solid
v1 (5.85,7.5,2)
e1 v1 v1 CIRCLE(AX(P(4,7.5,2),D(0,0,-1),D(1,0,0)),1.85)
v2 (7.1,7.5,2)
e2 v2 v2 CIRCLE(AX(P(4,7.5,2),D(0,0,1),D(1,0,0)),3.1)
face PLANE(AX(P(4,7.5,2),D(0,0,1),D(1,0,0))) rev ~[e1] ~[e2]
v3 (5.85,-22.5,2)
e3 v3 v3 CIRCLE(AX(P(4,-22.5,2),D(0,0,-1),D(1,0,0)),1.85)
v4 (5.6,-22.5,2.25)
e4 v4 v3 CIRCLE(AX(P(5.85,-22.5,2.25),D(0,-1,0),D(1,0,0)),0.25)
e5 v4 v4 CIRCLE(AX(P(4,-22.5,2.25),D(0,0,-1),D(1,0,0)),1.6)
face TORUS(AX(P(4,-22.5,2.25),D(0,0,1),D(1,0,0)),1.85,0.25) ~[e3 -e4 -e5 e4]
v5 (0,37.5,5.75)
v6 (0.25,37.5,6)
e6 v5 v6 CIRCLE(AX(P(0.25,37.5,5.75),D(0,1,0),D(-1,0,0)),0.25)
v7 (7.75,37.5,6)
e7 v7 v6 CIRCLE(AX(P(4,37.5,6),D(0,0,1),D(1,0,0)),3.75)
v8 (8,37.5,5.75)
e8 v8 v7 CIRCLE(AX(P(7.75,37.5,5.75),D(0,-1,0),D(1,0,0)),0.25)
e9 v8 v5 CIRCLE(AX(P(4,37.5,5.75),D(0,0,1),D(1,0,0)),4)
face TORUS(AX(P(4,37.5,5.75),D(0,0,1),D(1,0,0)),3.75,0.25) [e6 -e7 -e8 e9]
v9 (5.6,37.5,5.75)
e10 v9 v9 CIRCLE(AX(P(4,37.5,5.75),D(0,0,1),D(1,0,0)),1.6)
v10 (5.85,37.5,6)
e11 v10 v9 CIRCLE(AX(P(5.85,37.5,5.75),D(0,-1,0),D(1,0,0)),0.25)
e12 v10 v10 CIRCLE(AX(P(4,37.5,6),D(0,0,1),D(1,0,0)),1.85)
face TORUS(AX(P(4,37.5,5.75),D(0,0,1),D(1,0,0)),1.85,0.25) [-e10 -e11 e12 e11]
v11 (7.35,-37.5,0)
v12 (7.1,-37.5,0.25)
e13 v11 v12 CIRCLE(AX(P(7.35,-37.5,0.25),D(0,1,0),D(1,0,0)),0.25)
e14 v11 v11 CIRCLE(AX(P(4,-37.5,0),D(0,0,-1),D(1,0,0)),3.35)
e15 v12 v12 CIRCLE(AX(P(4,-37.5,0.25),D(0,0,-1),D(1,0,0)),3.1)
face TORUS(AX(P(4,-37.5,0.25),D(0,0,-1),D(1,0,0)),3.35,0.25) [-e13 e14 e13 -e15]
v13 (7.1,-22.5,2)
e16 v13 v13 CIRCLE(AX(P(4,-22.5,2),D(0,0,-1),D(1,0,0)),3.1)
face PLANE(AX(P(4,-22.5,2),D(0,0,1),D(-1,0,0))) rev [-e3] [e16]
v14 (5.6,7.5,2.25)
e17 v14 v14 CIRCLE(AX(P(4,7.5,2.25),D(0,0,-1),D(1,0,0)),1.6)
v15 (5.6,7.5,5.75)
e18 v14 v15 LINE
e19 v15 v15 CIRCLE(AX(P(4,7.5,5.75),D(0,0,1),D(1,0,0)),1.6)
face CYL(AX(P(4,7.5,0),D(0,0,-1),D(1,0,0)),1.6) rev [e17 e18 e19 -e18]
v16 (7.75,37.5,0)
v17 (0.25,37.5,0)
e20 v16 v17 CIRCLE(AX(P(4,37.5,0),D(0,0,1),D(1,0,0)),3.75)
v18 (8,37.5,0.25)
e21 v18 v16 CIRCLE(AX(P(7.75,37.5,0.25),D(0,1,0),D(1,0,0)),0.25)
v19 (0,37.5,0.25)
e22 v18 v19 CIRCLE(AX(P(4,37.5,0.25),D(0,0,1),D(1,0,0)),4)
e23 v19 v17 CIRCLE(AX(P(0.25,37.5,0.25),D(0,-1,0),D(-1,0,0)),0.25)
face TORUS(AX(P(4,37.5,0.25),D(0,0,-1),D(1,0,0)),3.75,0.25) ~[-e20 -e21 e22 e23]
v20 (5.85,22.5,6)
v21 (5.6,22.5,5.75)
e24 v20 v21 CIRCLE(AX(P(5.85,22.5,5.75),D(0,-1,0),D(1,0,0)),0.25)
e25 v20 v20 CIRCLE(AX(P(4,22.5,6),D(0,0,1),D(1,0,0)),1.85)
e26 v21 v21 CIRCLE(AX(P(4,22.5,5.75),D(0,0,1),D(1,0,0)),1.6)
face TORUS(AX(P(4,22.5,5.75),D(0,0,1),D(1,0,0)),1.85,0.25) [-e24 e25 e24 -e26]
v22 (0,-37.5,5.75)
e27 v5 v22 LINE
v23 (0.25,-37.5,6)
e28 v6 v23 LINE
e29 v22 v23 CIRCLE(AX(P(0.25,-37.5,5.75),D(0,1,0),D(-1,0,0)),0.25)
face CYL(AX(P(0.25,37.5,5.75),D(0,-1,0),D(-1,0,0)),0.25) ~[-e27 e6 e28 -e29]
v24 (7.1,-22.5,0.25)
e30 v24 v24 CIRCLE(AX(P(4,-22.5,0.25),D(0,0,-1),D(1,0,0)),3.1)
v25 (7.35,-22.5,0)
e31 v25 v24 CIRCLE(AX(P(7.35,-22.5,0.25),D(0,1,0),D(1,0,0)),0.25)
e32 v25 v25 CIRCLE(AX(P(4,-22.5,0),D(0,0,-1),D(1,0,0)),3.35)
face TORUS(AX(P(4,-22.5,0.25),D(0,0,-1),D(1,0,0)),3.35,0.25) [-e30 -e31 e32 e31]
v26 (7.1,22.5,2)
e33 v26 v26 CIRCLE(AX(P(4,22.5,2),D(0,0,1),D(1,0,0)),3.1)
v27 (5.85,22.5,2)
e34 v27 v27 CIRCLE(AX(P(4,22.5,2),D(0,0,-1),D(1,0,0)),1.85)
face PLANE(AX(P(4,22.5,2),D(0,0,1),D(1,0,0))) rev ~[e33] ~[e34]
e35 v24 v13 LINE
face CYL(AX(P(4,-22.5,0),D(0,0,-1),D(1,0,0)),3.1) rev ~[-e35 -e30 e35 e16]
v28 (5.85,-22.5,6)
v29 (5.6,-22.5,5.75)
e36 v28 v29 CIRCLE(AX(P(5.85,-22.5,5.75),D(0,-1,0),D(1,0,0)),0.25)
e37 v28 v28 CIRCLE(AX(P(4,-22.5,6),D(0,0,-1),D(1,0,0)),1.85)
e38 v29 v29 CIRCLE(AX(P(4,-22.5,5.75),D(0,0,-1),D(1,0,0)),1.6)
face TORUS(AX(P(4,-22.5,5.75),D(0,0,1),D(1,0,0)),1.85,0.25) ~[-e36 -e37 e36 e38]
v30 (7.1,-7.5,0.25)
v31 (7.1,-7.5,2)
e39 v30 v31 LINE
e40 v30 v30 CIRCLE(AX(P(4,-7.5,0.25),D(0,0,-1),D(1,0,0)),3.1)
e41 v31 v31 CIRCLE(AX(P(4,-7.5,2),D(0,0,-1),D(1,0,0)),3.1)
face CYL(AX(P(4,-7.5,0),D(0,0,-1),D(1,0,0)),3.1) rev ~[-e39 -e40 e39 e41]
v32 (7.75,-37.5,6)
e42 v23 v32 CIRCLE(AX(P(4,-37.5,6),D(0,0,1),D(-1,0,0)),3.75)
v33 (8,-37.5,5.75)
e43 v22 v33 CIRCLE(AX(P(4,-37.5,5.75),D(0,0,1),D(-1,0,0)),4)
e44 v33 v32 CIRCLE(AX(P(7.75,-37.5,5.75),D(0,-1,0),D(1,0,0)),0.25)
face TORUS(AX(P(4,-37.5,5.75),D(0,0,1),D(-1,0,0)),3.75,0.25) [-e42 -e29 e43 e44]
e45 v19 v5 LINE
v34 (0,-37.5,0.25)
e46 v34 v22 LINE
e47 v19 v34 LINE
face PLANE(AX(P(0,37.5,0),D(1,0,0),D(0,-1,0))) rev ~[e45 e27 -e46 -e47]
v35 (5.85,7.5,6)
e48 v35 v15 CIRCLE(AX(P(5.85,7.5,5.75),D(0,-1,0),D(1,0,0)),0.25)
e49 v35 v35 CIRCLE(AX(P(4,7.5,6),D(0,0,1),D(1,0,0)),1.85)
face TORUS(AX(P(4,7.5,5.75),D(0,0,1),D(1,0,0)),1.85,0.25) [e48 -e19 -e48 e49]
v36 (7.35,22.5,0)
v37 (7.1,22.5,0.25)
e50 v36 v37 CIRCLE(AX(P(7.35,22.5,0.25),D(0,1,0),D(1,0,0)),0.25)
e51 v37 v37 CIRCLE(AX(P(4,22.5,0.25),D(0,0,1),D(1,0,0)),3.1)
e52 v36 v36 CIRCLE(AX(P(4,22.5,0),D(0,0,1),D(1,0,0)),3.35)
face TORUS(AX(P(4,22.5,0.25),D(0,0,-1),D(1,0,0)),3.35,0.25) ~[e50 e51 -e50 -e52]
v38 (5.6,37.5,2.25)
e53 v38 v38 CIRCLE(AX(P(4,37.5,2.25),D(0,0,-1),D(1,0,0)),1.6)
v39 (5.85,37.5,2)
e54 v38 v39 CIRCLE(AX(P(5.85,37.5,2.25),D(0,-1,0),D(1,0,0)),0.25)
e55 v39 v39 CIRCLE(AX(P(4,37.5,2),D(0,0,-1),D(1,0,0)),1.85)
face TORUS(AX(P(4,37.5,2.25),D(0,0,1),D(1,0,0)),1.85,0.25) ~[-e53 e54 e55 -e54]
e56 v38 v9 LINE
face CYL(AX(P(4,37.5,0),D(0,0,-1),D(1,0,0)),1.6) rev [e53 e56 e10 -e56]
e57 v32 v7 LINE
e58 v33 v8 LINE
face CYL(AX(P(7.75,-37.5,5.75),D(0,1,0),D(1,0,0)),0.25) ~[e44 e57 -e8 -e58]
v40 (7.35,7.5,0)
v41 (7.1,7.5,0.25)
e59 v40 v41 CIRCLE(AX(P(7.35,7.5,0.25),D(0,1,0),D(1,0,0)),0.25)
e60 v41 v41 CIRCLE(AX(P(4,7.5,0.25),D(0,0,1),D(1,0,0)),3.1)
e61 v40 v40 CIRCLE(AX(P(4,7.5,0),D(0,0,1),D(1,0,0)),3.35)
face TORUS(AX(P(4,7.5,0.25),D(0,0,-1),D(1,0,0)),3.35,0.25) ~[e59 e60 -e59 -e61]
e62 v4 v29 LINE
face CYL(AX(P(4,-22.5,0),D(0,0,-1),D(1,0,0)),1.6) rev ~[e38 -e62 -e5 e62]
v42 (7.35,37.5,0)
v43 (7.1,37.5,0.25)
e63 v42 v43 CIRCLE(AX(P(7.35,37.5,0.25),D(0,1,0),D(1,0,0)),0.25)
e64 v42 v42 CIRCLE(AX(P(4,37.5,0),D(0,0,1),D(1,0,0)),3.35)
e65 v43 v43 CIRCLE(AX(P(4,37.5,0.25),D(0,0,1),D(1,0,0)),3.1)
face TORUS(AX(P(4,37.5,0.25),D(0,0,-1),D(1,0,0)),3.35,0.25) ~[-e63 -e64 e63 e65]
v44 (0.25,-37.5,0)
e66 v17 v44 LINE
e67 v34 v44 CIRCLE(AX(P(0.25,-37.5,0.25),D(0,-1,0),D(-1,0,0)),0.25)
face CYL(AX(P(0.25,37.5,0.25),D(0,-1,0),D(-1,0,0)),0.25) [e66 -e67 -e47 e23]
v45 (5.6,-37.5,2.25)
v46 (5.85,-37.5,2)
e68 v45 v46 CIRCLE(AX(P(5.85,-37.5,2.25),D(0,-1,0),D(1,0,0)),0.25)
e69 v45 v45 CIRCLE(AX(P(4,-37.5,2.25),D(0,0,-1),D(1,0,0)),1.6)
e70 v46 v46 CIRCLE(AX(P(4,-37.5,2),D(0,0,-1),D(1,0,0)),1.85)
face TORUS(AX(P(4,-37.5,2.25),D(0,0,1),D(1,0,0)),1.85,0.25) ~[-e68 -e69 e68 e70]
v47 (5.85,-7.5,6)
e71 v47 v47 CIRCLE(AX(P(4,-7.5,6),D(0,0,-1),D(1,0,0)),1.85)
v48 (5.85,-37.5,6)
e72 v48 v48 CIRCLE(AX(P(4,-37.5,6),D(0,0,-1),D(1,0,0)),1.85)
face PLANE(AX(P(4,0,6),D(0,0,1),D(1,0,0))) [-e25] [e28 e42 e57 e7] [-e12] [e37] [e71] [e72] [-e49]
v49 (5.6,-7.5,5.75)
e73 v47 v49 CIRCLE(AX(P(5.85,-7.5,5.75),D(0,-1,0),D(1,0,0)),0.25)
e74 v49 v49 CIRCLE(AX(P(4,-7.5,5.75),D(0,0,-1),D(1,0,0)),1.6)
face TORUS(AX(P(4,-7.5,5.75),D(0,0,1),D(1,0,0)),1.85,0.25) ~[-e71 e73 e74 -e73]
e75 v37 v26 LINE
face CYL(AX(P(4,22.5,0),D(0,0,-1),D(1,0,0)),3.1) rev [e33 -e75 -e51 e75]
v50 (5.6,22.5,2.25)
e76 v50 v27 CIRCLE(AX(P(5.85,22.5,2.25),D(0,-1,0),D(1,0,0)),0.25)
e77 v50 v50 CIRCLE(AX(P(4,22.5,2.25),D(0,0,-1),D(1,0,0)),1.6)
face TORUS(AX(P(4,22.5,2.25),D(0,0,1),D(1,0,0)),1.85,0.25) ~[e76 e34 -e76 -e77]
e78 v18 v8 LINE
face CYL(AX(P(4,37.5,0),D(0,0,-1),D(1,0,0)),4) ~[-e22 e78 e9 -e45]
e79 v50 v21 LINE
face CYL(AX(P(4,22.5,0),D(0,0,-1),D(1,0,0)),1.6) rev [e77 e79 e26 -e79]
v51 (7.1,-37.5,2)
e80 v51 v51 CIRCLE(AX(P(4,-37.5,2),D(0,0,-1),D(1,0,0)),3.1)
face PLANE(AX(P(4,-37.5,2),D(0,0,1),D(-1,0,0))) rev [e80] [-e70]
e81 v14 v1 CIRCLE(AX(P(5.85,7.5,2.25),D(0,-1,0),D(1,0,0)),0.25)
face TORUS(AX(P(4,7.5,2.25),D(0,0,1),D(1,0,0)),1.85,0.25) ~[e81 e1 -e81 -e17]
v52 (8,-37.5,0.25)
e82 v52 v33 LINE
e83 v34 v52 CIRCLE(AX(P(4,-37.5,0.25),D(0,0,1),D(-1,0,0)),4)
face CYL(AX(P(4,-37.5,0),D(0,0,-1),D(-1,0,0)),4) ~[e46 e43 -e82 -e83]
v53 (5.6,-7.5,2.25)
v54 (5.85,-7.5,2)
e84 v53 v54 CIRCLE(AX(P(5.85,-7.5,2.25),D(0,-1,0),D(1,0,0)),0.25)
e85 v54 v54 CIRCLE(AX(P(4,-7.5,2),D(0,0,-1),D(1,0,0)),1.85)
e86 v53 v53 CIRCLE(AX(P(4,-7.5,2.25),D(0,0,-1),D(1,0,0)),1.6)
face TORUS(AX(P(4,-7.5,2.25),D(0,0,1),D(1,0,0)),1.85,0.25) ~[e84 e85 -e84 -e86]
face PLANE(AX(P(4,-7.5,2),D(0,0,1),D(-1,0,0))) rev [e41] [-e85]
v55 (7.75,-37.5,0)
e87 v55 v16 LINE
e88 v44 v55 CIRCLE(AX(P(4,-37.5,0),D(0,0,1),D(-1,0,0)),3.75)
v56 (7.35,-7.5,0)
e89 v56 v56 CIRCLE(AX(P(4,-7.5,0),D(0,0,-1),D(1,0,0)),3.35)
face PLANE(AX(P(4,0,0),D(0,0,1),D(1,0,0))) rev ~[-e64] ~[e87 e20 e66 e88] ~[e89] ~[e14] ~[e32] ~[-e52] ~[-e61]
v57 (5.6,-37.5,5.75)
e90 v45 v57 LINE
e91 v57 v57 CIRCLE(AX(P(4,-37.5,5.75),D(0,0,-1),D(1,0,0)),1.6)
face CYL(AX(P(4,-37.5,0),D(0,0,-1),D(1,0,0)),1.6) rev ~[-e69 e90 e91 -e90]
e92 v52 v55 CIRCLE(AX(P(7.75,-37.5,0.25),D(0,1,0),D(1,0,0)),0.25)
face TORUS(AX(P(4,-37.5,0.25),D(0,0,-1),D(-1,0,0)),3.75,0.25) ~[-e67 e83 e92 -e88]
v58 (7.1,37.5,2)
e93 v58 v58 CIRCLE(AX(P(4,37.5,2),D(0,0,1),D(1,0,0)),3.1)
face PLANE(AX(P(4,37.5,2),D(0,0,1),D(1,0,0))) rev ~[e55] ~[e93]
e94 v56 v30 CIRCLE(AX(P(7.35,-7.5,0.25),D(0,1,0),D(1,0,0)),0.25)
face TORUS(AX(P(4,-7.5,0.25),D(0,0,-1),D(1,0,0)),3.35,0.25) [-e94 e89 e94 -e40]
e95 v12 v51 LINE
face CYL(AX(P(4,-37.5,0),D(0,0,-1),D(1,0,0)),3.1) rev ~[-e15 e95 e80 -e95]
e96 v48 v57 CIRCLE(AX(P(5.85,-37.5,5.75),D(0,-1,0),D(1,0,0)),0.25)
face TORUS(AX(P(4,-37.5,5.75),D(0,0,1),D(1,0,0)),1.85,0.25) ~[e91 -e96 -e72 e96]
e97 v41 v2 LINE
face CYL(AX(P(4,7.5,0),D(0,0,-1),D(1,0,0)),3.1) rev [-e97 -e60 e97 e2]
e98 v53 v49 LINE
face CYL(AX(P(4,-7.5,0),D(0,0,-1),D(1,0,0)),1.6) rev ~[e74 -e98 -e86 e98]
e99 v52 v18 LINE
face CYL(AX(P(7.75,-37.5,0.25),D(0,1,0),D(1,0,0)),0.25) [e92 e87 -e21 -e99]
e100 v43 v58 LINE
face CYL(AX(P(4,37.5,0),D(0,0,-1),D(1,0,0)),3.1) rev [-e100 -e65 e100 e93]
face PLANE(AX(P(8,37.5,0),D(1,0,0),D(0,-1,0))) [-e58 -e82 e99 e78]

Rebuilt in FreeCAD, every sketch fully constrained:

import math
import FreeCAD as App
import Part
import Sketcher
from FreeCAD import Vector
Q = App.Units.Quantity


def edges_at(feature, points):
    """Names of the edges that pass closest to the given points."""
    edges = feature.Shape.Edges
    near = lambda p: min(range(len(edges)), key=lambda i: edges[i].distToShape(Part.Vertex(*p))[0])
    return sorted({f"Edge{near(p) + 1}" for p in points})

doc = App.newDocument("Part")
body = doc.addObject("PartDesign::Body", "Body")

sketch1 = doc.addObject("Sketcher::SketchObject", "Sketch")
body.addObject(sketch1)
sketch1.AttachmentSupport = (doc.XY_Plane, [""])
sketch1.MapMode = "FlatFace"
sketch1.addGeometry([
    Part.LineSegment(Vector(0, 37.5, 0), Vector(0, -37.5, 0)),
    Part.ArcOfCircle(Part.Circle(Vector(4, -37.5, 0), Vector(0, 0, 1), 4), math.radians(180), math.radians(360)),
    Part.LineSegment(Vector(8, -37.5, 0), Vector(8, 37.5, 0)),
    Part.ArcOfCircle(Part.Circle(Vector(4, 37.5, 0), Vector(0, 0, 1), 4), math.radians(0), math.radians(180)),
], False)
sketch1.addConstraint([
    Sketcher.Constraint("Tangent", 0, 2, 1, 1),
    Sketcher.Constraint("Tangent", 1, 2, 2, 1),
    Sketcher.Constraint("Tangent", 2, 2, 3, 1),
    Sketcher.Constraint("Tangent", 3, 2, 0, 1),
    Sketcher.Constraint("Vertical", 0),
    Sketcher.Constraint("Vertical", 2),
    Sketcher.Constraint("Symmetric", 0, 2, 3, 2, -1, 1),
    Sketcher.Constraint("Radius", 1, Q("4 mm")),
    Sketcher.Constraint("DistanceY", 0, 2, 0, 1, Q("75 mm")),
])
pad1 = doc.addObject("PartDesign::Pad", "Pad")
body.addObject(pad1)
pad1.Profile = sketch1
pad1.Length = 6

sketch2 = doc.addObject("Sketcher::SketchObject", "Sketch001")
body.addObject(sketch2)
sketch2.AttachmentSupport = (doc.XY_Plane, [""])
sketch2.MapMode = "FlatFace"
sketch2.addGeometry(Part.Circle(Vector(4, 7.5, 0), Vector(0, 0, 1), 1.6), False)
sketch2.addConstraint([
    Sketcher.Constraint("Diameter", 0, Q("3.2 mm")),
    Sketcher.Constraint("DistanceX", -1, 1, 0, 3, Q("4 mm")),
    Sketcher.Constraint("DistanceY", -1, 1, 0, 3, Q("7.5 mm")),
])
pocket1 = doc.addObject("PartDesign::Pocket", "Pocket")
body.addObject(pocket1)
pocket1.Profile = sketch2
pocket1.Length = 6
pocket1.Reversed = True

sketch3 = doc.addObject("Sketcher::SketchObject", "Sketch002")
body.addObject(sketch3)
sketch3.AttachmentSupport = (doc.XY_Plane, [""])
sketch3.MapMode = "FlatFace"
sketch3.addGeometry(Part.Circle(Vector(4, 7.5, 0), Vector(0, 0, 1), 3.1), False)
sketch3.addConstraint([
    Sketcher.Constraint("Diameter", 0, Q("6.2 mm")),
    Sketcher.Constraint("DistanceX", -1, 1, 0, 3, Q("4 mm")),
    Sketcher.Constraint("DistanceY", -1, 1, 0, 3, Q("7.5 mm")),
])
pocket2 = doc.addObject("PartDesign::Pocket", "Pocket001")
body.addObject(pocket2)
pocket2.Profile = sketch3
pocket2.Length = 2
pocket2.Reversed = True

sketch4 = doc.addObject("Sketcher::SketchObject", "Sketch003")
body.addObject(sketch4)
sketch4.AttachmentSupport = (doc.XY_Plane, [""])
sketch4.MapMode = "FlatFace"
sketch4.addGeometry(Part.Circle(Vector(4, 22.5, 0), Vector(0, 0, 1), 1.6), False)
sketch4.addConstraint([
    Sketcher.Constraint("Diameter", 0, Q("3.2 mm")),
    Sketcher.Constraint("DistanceX", -1, 1, 0, 3, Q("4 mm")),
    Sketcher.Constraint("DistanceY", -1, 1, 0, 3, Q("22.5 mm")),
])
pocket3 = doc.addObject("PartDesign::Pocket", "Pocket002")
body.addObject(pocket3)
pocket3.Profile = sketch4
pocket3.Length = 6
pocket3.Reversed = True

sketch5 = doc.addObject("Sketcher::SketchObject", "Sketch004")
body.addObject(sketch5)
sketch5.AttachmentSupport = (doc.XY_Plane, [""])
sketch5.MapMode = "FlatFace"
sketch5.addGeometry(Part.Circle(Vector(4, 37.5, 0), Vector(0, 0, 1), 1.6), False)
sketch5.addConstraint([
    Sketcher.Constraint("Diameter", 0, Q("3.2 mm")),
    Sketcher.Constraint("DistanceX", -1, 1, 0, 3, Q("4 mm")),
    Sketcher.Constraint("DistanceY", -1, 1, 0, 3, Q("37.5 mm")),
])
pocket4 = doc.addObject("PartDesign::Pocket", "Pocket003")
body.addObject(pocket4)
pocket4.Profile = sketch5
pocket4.Length = 6
pocket4.Reversed = True
doc.recompute()

mirrored = doc.addObject("PartDesign::Mirrored", "Mirrored")
body.addObject(mirrored)
mirrored.Originals = [pocket1, pocket3, pocket4]
mirrored.MirrorPlane = (doc.XZ_Plane, [""])
body.Tip = mirrored

sketch6 = doc.addObject("Sketcher::SketchObject", "Sketch005")
body.addObject(sketch6)
sketch6.AttachmentSupport = (doc.XY_Plane, [""])
sketch6.MapMode = "FlatFace"
sketch6.addGeometry(Part.Circle(Vector(4, 22.5, 0), Vector(0, 0, 1), 3.1), False)
sketch6.addConstraint([
    Sketcher.Constraint("Diameter", 0, Q("6.2 mm")),
    Sketcher.Constraint("DistanceX", -1, 1, 0, 3, Q("4 mm")),
    Sketcher.Constraint("DistanceY", -1, 1, 0, 3, Q("22.5 mm")),
])
pocket5 = doc.addObject("PartDesign::Pocket", "Pocket004")
body.addObject(pocket5)
pocket5.Profile = sketch6
pocket5.Length = 2
pocket5.Reversed = True

sketch7 = doc.addObject("Sketcher::SketchObject", "Sketch006")
body.addObject(sketch7)
sketch7.AttachmentSupport = (doc.XY_Plane, [""])
sketch7.MapMode = "FlatFace"
sketch7.addGeometry(Part.Circle(Vector(4, 37.5, 0), Vector(0, 0, 1), 3.1), False)
sketch7.addConstraint([
    Sketcher.Constraint("Diameter", 0, Q("6.2 mm")),
    Sketcher.Constraint("DistanceX", -1, 1, 0, 3, Q("4 mm")),
    Sketcher.Constraint("DistanceY", -1, 1, 0, 3, Q("37.5 mm")),
])
pocket6 = doc.addObject("PartDesign::Pocket", "Pocket005")
body.addObject(pocket6)
pocket6.Profile = sketch7
pocket6.Length = 2
pocket6.Reversed = True
doc.recompute()

mirrored2 = doc.addObject("PartDesign::Mirrored", "Mirrored001")
body.addObject(mirrored2)
mirrored2.Originals = [pocket2, pocket5, pocket6]
mirrored2.MirrorPlane = (doc.XZ_Plane, [""])
body.Tip = mirrored2
doc.recompute()

fillet = doc.addObject("PartDesign::Fillet", "Fillet")
body.addObject(fillet)
fillet.Base = (mirrored2, edges_at(mirrored2, [
    (4, -41.5, 0),
    (8, 0, 0),
    (0, 0, 0),
    (4, 41.5, 0),
    (4, 41.5, 6),
    (8, 0, 6),
    (4, -41.5, 6),
    (0, 0, 6),
    (2.4, -37.5, 6),
    (2.4, -22.5, 6),
    (2.4, -7.5, 6),
    (2.4, 7.5, 6),
    (2.4, 37.5, 6),
    (2.4, 22.5, 6),
    (0.9, 37.5, 0),
    (2.4, 37.5, 2),
    (0.9, 22.5, 0),
    (2.4, 22.5, 2),
    (0.9, 7.5, 0),
    (2.4, 7.5, 2),
    (0.9, -7.5, 0),
    (2.4, -7.5, 2),
    (0.9, -22.5, 0),
    (2.4, -22.5, 2),
    (0.9, -37.5, 0),
    (2.4, -37.5, 2),
]))
fillet.Radius = 0.25

doc.recompute()
